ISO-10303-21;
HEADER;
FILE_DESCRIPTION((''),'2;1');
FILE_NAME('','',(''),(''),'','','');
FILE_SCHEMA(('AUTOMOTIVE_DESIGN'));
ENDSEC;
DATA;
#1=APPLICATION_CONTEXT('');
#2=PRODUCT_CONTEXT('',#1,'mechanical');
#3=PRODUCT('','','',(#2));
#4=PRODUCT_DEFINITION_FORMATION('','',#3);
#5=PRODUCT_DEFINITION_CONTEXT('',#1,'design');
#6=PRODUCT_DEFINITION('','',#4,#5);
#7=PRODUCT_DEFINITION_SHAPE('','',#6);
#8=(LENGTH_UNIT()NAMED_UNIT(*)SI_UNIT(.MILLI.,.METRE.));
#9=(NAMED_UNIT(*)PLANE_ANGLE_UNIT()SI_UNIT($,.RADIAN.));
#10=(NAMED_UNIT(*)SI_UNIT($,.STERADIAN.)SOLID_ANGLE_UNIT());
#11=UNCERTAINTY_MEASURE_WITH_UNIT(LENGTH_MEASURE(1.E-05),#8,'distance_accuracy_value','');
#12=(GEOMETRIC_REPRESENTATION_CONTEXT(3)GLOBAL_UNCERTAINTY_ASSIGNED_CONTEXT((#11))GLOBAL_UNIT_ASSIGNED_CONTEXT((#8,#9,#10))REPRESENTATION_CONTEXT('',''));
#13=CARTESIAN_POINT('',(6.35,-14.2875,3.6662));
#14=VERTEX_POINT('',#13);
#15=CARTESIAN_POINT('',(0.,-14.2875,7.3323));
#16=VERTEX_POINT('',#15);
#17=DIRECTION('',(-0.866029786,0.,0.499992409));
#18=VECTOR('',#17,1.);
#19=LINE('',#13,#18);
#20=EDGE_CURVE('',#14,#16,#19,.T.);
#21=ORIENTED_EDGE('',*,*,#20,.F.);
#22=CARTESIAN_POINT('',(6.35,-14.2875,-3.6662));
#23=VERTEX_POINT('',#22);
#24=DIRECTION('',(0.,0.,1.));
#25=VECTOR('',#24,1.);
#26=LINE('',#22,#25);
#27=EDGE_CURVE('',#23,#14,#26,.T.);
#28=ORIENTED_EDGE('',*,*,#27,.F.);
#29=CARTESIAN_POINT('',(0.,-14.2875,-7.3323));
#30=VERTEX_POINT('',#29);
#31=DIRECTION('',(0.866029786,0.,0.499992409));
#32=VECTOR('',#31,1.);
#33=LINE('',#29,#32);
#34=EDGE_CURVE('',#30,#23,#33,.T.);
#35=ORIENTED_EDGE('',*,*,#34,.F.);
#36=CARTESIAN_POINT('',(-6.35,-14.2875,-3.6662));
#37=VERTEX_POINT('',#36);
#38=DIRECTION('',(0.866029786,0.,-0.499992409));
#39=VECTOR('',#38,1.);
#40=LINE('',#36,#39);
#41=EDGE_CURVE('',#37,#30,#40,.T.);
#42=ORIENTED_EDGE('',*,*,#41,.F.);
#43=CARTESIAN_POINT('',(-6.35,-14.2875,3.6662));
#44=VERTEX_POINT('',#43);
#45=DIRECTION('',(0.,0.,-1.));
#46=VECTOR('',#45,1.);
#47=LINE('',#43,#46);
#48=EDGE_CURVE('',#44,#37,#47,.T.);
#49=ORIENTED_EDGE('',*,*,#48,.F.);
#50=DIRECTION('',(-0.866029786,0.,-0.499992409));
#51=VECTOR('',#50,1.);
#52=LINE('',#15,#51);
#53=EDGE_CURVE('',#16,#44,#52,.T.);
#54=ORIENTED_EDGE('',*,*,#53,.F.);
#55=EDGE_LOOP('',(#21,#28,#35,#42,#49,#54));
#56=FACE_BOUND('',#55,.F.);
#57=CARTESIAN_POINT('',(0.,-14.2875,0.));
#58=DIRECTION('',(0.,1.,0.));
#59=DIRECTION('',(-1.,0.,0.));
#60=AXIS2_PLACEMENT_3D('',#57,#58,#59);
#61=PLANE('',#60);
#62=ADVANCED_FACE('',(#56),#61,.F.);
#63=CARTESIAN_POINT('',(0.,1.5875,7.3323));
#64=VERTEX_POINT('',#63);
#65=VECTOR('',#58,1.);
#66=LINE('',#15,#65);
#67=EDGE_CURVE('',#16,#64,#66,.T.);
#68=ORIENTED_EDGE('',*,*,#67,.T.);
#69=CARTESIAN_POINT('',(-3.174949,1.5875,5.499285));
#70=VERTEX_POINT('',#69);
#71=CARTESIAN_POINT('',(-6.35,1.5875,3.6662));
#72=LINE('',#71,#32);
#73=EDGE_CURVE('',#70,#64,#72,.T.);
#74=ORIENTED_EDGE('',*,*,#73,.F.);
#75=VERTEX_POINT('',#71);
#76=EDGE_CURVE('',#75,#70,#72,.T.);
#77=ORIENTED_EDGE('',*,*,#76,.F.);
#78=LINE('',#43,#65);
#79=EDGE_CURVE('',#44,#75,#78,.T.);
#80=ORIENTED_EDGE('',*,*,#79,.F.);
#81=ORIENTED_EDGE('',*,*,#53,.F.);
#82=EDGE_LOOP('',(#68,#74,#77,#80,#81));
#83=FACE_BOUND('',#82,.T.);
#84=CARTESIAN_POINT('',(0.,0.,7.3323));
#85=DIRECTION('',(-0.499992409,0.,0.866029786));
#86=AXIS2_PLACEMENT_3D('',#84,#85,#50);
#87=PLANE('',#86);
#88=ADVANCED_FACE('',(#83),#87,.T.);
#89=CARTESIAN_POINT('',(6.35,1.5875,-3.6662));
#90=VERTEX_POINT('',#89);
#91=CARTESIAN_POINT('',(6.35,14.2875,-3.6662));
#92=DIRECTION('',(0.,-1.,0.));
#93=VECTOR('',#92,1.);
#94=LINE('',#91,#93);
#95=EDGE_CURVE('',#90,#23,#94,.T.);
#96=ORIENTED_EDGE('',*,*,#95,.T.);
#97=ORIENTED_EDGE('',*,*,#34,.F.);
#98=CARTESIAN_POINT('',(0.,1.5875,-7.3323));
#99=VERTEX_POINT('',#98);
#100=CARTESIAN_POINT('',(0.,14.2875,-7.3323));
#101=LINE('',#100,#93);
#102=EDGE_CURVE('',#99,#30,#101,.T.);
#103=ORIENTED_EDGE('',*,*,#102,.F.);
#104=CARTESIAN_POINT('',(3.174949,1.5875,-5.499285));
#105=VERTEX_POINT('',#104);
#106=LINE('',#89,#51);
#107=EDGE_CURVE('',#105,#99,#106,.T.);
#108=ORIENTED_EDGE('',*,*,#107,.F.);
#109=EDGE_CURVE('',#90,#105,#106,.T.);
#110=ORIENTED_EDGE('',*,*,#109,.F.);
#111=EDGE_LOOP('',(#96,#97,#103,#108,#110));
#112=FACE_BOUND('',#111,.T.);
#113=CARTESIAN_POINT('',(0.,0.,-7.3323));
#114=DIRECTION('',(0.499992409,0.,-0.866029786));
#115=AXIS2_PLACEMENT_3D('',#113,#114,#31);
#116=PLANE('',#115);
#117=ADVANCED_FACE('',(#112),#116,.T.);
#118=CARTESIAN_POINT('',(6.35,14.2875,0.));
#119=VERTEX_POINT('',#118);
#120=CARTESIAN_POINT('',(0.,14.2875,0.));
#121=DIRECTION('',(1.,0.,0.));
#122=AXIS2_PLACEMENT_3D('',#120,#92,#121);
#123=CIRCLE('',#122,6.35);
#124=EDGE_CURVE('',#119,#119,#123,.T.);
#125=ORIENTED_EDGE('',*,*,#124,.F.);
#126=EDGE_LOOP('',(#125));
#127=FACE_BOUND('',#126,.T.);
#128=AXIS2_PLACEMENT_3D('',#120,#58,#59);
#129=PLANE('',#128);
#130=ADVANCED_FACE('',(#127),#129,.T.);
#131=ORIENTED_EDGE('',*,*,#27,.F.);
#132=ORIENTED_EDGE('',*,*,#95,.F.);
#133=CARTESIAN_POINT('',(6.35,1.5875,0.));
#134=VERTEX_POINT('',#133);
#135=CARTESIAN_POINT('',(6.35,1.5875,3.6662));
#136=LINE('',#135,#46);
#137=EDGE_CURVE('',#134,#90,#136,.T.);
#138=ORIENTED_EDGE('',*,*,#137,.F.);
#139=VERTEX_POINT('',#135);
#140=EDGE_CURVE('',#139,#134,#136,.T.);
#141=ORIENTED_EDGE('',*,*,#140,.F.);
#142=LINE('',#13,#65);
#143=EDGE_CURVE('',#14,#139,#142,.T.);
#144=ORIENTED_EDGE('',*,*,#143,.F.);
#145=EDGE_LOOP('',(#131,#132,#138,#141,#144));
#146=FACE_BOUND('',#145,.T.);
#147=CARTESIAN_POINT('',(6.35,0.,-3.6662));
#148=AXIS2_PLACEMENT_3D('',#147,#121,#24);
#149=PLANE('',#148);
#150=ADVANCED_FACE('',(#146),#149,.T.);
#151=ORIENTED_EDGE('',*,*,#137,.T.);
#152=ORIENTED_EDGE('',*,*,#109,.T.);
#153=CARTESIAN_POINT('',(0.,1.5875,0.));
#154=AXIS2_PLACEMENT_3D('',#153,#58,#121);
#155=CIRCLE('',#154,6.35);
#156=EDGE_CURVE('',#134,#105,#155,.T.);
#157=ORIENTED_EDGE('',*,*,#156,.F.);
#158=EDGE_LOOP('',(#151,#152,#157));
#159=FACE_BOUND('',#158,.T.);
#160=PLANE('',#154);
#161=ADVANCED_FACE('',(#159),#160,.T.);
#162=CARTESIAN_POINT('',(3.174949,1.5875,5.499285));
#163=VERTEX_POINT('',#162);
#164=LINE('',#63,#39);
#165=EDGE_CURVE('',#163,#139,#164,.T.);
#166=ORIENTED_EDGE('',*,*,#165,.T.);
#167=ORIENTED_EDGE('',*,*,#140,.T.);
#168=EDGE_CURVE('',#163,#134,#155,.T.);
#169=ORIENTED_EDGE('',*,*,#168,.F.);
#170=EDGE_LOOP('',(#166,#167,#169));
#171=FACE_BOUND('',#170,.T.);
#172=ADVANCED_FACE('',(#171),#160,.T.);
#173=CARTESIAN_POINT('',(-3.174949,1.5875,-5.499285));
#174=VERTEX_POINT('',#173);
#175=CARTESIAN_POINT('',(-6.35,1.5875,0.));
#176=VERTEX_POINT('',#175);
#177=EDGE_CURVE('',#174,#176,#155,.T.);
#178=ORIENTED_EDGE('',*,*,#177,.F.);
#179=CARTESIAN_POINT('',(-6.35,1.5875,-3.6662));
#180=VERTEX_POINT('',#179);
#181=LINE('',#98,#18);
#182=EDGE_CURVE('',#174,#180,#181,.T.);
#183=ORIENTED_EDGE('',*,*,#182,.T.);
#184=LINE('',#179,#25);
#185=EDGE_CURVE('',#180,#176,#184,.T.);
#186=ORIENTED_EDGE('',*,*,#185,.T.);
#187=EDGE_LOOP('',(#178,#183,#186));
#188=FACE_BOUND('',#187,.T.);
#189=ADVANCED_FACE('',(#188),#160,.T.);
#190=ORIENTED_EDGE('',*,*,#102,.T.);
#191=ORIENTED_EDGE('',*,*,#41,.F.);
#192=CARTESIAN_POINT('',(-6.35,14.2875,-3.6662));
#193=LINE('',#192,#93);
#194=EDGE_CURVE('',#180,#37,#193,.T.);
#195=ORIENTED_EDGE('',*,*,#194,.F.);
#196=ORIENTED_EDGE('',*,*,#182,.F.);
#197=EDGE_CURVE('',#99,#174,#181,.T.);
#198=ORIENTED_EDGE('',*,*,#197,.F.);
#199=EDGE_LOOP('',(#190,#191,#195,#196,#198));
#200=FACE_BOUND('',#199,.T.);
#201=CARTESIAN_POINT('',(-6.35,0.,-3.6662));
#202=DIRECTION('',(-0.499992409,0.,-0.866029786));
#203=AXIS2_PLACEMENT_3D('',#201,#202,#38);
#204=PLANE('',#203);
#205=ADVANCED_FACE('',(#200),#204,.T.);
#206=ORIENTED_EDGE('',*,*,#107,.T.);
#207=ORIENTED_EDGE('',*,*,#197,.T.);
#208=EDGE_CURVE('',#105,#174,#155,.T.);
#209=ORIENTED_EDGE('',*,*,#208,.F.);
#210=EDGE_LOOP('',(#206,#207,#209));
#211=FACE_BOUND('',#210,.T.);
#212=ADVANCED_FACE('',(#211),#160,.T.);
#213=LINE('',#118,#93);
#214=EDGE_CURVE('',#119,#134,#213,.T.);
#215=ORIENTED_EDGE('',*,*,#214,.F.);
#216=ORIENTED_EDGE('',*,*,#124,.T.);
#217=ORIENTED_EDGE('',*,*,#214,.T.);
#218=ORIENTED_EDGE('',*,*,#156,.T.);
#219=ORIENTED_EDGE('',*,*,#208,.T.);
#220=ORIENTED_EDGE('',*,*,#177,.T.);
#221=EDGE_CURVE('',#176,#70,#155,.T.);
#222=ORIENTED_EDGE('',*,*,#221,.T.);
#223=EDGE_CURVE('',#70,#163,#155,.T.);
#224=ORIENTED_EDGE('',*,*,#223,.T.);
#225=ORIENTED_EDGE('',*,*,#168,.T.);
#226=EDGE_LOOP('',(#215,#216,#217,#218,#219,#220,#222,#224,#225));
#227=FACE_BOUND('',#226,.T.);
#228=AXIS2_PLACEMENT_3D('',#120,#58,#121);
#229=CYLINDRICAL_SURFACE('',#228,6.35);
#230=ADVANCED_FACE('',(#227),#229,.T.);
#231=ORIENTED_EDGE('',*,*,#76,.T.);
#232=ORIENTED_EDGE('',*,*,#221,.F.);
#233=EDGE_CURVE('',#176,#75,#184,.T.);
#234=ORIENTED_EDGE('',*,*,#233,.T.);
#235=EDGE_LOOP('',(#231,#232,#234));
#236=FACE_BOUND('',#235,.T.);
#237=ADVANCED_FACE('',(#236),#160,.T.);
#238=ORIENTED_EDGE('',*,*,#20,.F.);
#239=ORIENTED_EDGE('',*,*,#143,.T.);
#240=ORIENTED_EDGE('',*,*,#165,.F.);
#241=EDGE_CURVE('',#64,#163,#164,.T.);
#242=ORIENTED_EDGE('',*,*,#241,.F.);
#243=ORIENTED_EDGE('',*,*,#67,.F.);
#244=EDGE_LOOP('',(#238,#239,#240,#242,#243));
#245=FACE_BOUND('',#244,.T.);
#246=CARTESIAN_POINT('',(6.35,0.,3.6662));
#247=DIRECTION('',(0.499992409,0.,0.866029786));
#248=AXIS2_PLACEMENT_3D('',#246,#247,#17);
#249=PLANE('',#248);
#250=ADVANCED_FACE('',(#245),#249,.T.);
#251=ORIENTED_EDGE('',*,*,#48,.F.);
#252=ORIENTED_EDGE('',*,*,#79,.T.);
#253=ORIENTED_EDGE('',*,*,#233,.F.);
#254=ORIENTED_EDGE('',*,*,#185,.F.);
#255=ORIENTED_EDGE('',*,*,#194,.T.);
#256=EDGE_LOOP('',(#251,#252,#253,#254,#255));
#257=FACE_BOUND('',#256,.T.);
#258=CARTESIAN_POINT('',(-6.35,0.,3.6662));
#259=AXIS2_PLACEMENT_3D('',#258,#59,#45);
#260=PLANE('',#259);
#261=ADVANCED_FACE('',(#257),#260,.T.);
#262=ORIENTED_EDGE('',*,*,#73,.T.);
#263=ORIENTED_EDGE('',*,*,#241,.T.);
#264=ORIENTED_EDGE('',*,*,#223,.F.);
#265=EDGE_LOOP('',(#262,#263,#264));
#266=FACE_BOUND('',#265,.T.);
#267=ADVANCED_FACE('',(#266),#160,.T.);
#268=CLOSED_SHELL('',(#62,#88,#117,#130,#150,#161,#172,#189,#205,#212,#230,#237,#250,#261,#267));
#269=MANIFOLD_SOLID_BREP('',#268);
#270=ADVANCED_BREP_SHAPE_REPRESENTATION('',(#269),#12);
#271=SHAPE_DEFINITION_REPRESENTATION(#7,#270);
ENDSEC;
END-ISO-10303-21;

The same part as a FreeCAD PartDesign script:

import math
import FreeCAD as App
import Part
import Sketcher
from FreeCAD import Vector
Q = App.Units.Quantity


def add_polygon(sketch, points):
    """Adds a closed chain of lines whose ends are joined by coincident constraints."""
    first, n = sketch.GeometryCount, len(points)
    for a, b in zip(points, points[1:] + points[:1]):
        sketch.addGeometry(Part.LineSegment(App.Vector(*a, 0), App.Vector(*b, 0)), False)
    for i in range(n):
        sketch.addConstraint(Sketcher.Constraint("Coincident", first + i, 2, first + (i + 1) % n, 1))

doc = App.newDocument("Part")
body = doc.addObject("PartDesign::Body", "Body")

# Sketch on XZ plane
sketch1 = body.newObject("Sketcher::SketchObject", "Sketch")
sketch1.AttachmentSupport = (doc.getObject("XZ_Plane"), [""])
sketch1.MapMode = "FlatFace"
add_polygon(sketch1, [(-6, -4), (-6, 4), (0, 7), (6, 4), (6, -4), (0, -7)])  # lines 0-5
sketch1.addConstraint([
    Sketcher.Constraint("Vertical", 0),
    Sketcher.Constraint("Vertical", 3),
    Sketcher.Constraint("Symmetric", 0, 2, 3, 2, -1, 1),
    Sketcher.Constraint("Symmetric", 1, 2, 4, 2, -1, 1),
    Sketcher.Constraint("PointOnObject", 1, 2, -2),
    Sketcher.Constraint("Parallel", 2, 5),
    Sketcher.Constraint("Horizontal", 0, 2, 2, 2),
    Sketcher.Constraint("DistanceX", 0, 2, 2, 2, Q("0.5 in")),
    Sketcher.Constraint("Angle", 1, Q("29.9995 deg")),
    Sketcher.Constraint("DistanceY", 3, 2, 1, 2, Q("0.433 in")),
])
pad1 = body.newObject("PartDesign::Pad", "Pad")
pad1.Profile = sketch1
pad1.Length = Q("1.125 in")
pad1.Midplane = True

# Sketch on XZ plane
sketch2 = body.newObject("Sketcher::SketchObject", "Sketch001")
sketch2.AttachmentSupport = (doc.getObject("XZ_Plane"), [""])
sketch2.MapMode = "FlatFace"
sketch2.AttachmentOffset = App.Placement(Vector(0, 0, -0.5625 * 25.4), App.Rotation())
sketch2.addGeometry([
    Part.LineSegment(Vector(-3.2, 5.5, 0), Vector(0, 7.3, 0)),  # 0
    Part.LineSegment(Vector(0, 7.3, 0), Vector(3.2, 5.5, 0)),  # 1
    Part.ArcOfCircle(Part.Circle(Vector(0, 0, 0), Vector(0, 0, 1), 6.3), math.radians(60), math.radians(120)),  # 2
    Part.ArcOfCircle(Part.Circle(Vector(0, 0, 0), Vector(0, 0, 1), 6.3), math.radians(0), math.radians(60)),  # 3
    Part.LineSegment(Vector(3.2, 5.5, 0), Vector(6.3, 3.7, 0)),  # 4
    Part.LineSegment(Vector(6.3, 3.7, 0), Vector(6.3, 0, 0)),  # 5
    Part.LineSegment(Vector(-6.3, 3.7, 0), Vector(-3.2, 5.5, 0)),  # 6
    Part.ArcOfCircle(Part.Circle(Vector(0, 0, 0), Vector(0, 0, 1), 6.3), math.radians(120), math.radians(180)),  # 7
    Part.LineSegment(Vector(-6.3, 0, 0), Vector(-6.3, 3.7, 0)),  # 8
    Part.ArcOfCircle(Part.Circle(Vector(0, 0, 0), Vector(0, 0, 1), 6.3), math.radians(-60), math.radians(0)),  # 9
    Part.LineSegment(Vector(6.3, 0, 0), Vector(6.3, -3.7, 0)),  # 10
    Part.LineSegment(Vector(6.3, -3.7, 0), Vector(3.2, -5.5, 0)),  # 11
    Part.LineSegment(Vector(-6.3, -3.7, 0), Vector(-6.3, 0, 0)),  # 12
    Part.ArcOfCircle(Part.Circle(Vector(0, 0, 0), Vector(0, 0, 1), 6.3), math.radians(180), math.radians(240)),  # 13
    Part.LineSegment(Vector(-3.2, -5.5, 0), Vector(-6.3, -3.7, 0)),  # 14
    Part.ArcOfCircle(Part.Circle(Vector(0, 0, 0), Vector(0, 0, 1), 6.3), math.radians(-120), math.radians(-60)),  # 15
    Part.LineSegment(Vector(3.2, -5.5, 0), Vector(0, -7.3, 0)),  # 16
    Part.LineSegment(Vector(0, -7.3, 0), Vector(-3.2, -5.5, 0)),  # 17
], False)
sketch2.addConstraint([
    Sketcher.Constraint("Coincident", 0, 2, 1, 1),
    Sketcher.Constraint("Tangent", 1, 2, 2, 1),
    Sketcher.Constraint("Tangent", 2, 2, 0, 1),
    Sketcher.Constraint("Tangent", 3, 2, 4, 1),
    Sketcher.Constraint("Coincident", 4, 2, 5, 1),
    Sketcher.Constraint("Tangent", 5, 2, 3, 1),
    Sketcher.Constraint("Tangent", 6, 2, 7, 1),
    Sketcher.Constraint("Tangent", 7, 2, 8, 1),
    Sketcher.Constraint("Coincident", 8, 2, 6, 1),
    Sketcher.Constraint("Tangent", 9, 2, 10, 1),
    Sketcher.Constraint("Coincident", 10, 2, 11, 1),
    Sketcher.Constraint("Tangent", 11, 2, 9, 1),
    Sketcher.Constraint("Tangent", 12, 2, 13, 1),
    Sketcher.Constraint("Tangent", 13, 2, 14, 1),
    Sketcher.Constraint("Coincident", 14, 2, 12, 1),
    Sketcher.Constraint("Tangent", 15, 2, 16, 1),
    Sketcher.Constraint("Coincident", 16, 2, 17, 1),
    Sketcher.Constraint("Tangent", 17, 2, 15, 1),
    Sketcher.Constraint("Vertical", 5),
    Sketcher.Constraint("Vertical", 8),
    Sketcher.Constraint("Vertical", 10),
    Sketcher.Constraint("Vertical", 12),
    Sketcher.Constraint("Coincident", 2, 3, -1, 1),
    Sketcher.Constraint("Coincident", 3, 3, -1, 1),
    Sketcher.Constraint("Coincident", 7, 3, -1, 1),
    Sketcher.Constraint("Coincident", 9, 3, -1, 1),
    Sketcher.Constraint("Coincident", 13, 3, -1, 1),
    Sketcher.Constraint("Coincident", 15, 3, -1, 1),
    Sketcher.Constraint("Coincident", 3, 2, 1, 2),
    Sketcher.Constraint("Coincident", 6, 2, 2, 2),
    Sketcher.Constraint("Coincident", 15, 2, 11, 2),
    Sketcher.Constraint("Coincident", 17, 2, 13, 2),
    Sketcher.Constraint("Equal", 7, 9),
    Sketcher.Constraint("Symmetric", 0, 2, 16, 2, -1, 1),
    Sketcher.Constraint("PointOnObject", 0, 2, -2),
    Sketcher.Constraint("Equal", 1, 4),
    Sketcher.Constraint("Radius", 2, Q("0.25 in")),
])
pocket1 = body.newObject("PartDesign::Pocket", "Pocket")
pocket1.Profile = sketch2
pocket1.Length = Q("0.5 in")
pocket1.Reversed = True

doc.recompute()
